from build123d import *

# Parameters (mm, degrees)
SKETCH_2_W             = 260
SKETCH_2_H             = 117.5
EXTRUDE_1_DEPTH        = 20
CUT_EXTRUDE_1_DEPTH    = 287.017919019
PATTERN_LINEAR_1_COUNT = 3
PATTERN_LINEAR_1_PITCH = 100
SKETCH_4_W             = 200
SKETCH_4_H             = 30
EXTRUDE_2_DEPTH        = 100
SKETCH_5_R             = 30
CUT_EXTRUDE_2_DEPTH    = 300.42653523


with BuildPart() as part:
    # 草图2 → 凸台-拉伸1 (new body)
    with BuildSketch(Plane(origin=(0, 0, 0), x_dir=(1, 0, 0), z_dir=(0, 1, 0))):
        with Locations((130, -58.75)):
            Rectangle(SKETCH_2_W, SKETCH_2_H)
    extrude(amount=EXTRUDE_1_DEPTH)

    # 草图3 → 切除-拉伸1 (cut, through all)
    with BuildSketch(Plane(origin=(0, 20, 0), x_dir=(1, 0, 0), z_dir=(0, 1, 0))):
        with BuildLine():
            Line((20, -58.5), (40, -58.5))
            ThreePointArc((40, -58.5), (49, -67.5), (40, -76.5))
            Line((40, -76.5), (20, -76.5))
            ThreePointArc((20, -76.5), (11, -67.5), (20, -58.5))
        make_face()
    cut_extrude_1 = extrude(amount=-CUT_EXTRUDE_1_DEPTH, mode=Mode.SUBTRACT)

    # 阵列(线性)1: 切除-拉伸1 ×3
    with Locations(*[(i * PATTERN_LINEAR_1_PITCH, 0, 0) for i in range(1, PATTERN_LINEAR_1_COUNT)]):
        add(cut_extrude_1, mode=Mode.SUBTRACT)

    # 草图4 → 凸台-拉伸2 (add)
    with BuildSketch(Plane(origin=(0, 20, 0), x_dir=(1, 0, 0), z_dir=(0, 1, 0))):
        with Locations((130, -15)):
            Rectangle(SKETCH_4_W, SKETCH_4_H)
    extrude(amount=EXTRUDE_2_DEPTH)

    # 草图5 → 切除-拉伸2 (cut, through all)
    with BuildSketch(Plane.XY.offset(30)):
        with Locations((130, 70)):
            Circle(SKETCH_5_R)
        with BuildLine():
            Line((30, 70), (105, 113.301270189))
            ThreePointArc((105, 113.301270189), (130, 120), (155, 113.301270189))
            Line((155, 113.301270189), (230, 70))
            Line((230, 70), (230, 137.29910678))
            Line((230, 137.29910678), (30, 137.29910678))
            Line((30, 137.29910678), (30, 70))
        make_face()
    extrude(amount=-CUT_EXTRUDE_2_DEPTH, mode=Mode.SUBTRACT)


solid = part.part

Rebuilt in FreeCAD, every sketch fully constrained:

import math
import FreeCAD as App
import Part
import Sketcher
from FreeCAD import Vector
Q = App.Units.Quantity


def add_polygon(sketch, points):
    """Adds a closed chain of lines whose ends are joined by coincident constraints."""
    first, n = sketch.GeometryCount, len(points)
    for a, b in zip(points, points[1:] + points[:1]):
        sketch.addGeometry(Part.LineSegment(App.Vector(*a, 0), App.Vector(*b, 0)), False)
    for i in range(n):
        sketch.addConstraint(Sketcher.Constraint("Coincident", first + i, 2, first + (i + 1) % n, 1))

doc = App.newDocument("Part")
body = doc.addObject("PartDesign::Body", "Body")

sketch1 = body.newObject("Sketcher::SketchObject", "Sketch")
sketch1.AttachmentSupport = (doc.getObject("XZ_Plane"), [""])
sketch1.MapMode = "FlatFace"
add_polygon(sketch1, [(0, 0), (0, 117.5), (260, 117.5), (260, 0)])
sketch1.addConstraint([
    Sketcher.Constraint("Vertical", 0),
    Sketcher.Constraint("Horizontal", 1),
    Sketcher.Constraint("Vertical", 2),
    Sketcher.Constraint("Horizontal", 3),
    Sketcher.Constraint("Coincident", 3, 2, -1, 1),
    Sketcher.Constraint("DistanceX", 1, 1, 1, 2, Q("260 mm")),
    Sketcher.Constraint("DistanceY", 0, 1, 0, 2, Q("117.5 mm")),
])
pad1 = body.newObject("PartDesign::Pad", "Pad")
pad1.Profile = sketch1
pad1.Length = 20
pad1.Reversed = True

sketch2 = body.newObject("Sketcher::SketchObject", "Sketch001")
sketch2.AttachmentSupport = (doc.getObject("XZ_Plane"), [""])
sketch2.MapMode = "FlatFace"
sketch2.AttachmentOffset = App.Placement(Vector(0, 0, -20), App.Rotation())
sketch2.addGeometry([
    Part.LineSegment(Vector(40, 58.5, 0), Vector(20, 58.5, 0)),
    Part.ArcOfCircle(Part.Circle(Vector(20, 67.5, 0), Vector(0, 0, 1), 9), math.radians(90), math.radians(270)),
    Part.LineSegment(Vector(20, 76.5, 0), Vector(40, 76.5, 0)),
    Part.ArcOfCircle(Part.Circle(Vector(40, 67.5, 0), Vector(0, 0, 1), 9), math.radians(-90), math.radians(90)),
], False)
sketch2.addConstraint([
    Sketcher.Constraint("Tangent", 0, 2, 1, 2),
    Sketcher.Constraint("Tangent", 1, 1, 2, 1),
    Sketcher.Constraint("Tangent", 2, 2, 3, 2),
    Sketcher.Constraint("Tangent", 3, 1, 0, 1),
    Sketcher.Constraint("Horizontal", 0),
    Sketcher.Constraint("Horizontal", 2),
    Sketcher.Constraint("Radius", 1, Q("9 mm")),
    Sketcher.Constraint("DistanceX", 0, 2, 0, 1, Q("20 mm")),
    Sketcher.Constraint("DistanceX", -1, 1, 1, 3, Q("20 mm")),
    Sketcher.Constraint("DistanceY", -1, 1, 1, 3, Q("67.5 mm")),
])
pocket1 = body.newObject("PartDesign::Pocket", "Pocket")
pocket1.Profile = sketch2
pocket1.Type = "ThroughAll"
pocket1.Reversed = True
doc.recompute()

linearpattern = body.newObject("PartDesign::LinearPattern", "LinearPattern")
linearpattern.Originals = [pocket1]
linearpattern.Direction = (doc.getObject("X_Axis"), [""])
linearpattern.Mode = "offset"
linearpattern.Offset = 100
linearpattern.Occurrences = 3
body.Tip = linearpattern

sketch3 = body.newObject("Sketcher::SketchObject", "Sketch002")
sketch3.AttachmentSupport = (doc.getObject("XZ_Plane"), [""])
sketch3.MapMode = "FlatFace"
sketch3.AttachmentOffset = App.Placement(Vector(0, 0, -20), App.Rotation())
add_polygon(sketch3, [(30, 0), (30, 30), (230, 30), (230, 0)])
sketch3.addConstraint([
    Sketcher.Constraint("Vertical", 0),
    Sketcher.Constraint("Horizontal", 1),
    Sketcher.Constraint("Vertical", 2),
    Sketcher.Constraint("Horizontal", 3),
    Sketcher.Constraint("PointOnObject", 2, 2, -1),
    Sketcher.Constraint("DistanceX", 1, 1, 1, 2, Q("200 mm")),
    Sketcher.Constraint("DistanceY", 0, 1, 0, 2, Q("30 mm")),
    Sketcher.Constraint("DistanceX", -1, 1, 0, 2, Q("30 mm")),
])
pad2 = body.newObject("PartDesign::Pad", "Pad001")
pad2.Profile = sketch3
pad2.Length = 100
pad2.Reversed = True

sketch4 = body.newObject("Sketcher::SketchObject", "Sketch003")
sketch4.AttachmentSupport = (doc.getObject("XY_Plane"), [""])
sketch4.MapMode = "FlatFace"
sketch4.AttachmentOffset = App.Placement(Vector(0, 0, 30), App.Rotation())
sketch4.addGeometry([
    Part.Circle(Vector(130, 70, 0), Vector(0, 0, 1), 30),
    Part.LineSegment(Vector(30, 70, 0), Vector(105, 113.30127, 0)),
    Part.ArcOfCircle(Part.Circle(Vector(130, 70, 0), Vector(0, 0, 1), 50), math.radians(60), math.radians(120)),
    Part.LineSegment(Vector(155, 113.30127, 0), Vector(230, 70, 0)),
    Part.LineSegment(Vector(230, 70, 0), Vector(230, 137.299107, 0)),
    Part.LineSegment(Vector(230, 137.299107, 0), Vector(30, 137.299107, 0)),
    Part.LineSegment(Vector(30, 137.299107, 0), Vector(30, 70, 0)),
], False)
sketch4.addConstraint([
    Sketcher.Constraint("Tangent", 1, 2, 2, 2),
    Sketcher.Constraint("Tangent", 2, 1, 3, 1),
    Sketcher.Constraint("Coincident", 3, 2, 4, 1),
    Sketcher.Constraint("Coincident", 4, 2, 5, 1),
    Sketcher.Constraint("Coincident", 5, 2, 6, 1),
    Sketcher.Constraint("Coincident", 6, 2, 1, 1),
    Sketcher.Constraint("Vertical", 4),
    Sketcher.Constraint("Horizontal", 5),
    Sketcher.Constraint("Vertical", 6),
    Sketcher.Constraint("Coincident", 2, 3, 0, 3),
    Sketcher.Constraint("Horizontal", 1, 2, 2, 1),
    Sketcher.Constraint("Horizontal", 2, 3, 3, 2),
    Sketcher.Constraint("Horizontal", 3, 2, 6, 2),
    Sketcher.Constraint("Diameter", 0, Q("60 mm")),
    Sketcher.Constraint("Radius", 2, Q("50 mm")),
    Sketcher.Constraint("DistanceX", 5, 2, 5, 1, Q("200 mm")),
    Sketcher.Constraint("DistanceX", -1, 1, 0, 3, Q("130 mm")),
    Sketcher.Constraint("DistanceY", -1, 1, 0, 3, Q("70 mm")),
    Sketcher.Constraint("DistanceY", 4, 1, 4, 2, Q("67.299107 mm")),
])
pocket2 = body.newObject("PartDesign::Pocket", "Pocket001")
pocket2.Profile = sketch4
pocket2.Type = "ThroughAll"

doc.recompute()
